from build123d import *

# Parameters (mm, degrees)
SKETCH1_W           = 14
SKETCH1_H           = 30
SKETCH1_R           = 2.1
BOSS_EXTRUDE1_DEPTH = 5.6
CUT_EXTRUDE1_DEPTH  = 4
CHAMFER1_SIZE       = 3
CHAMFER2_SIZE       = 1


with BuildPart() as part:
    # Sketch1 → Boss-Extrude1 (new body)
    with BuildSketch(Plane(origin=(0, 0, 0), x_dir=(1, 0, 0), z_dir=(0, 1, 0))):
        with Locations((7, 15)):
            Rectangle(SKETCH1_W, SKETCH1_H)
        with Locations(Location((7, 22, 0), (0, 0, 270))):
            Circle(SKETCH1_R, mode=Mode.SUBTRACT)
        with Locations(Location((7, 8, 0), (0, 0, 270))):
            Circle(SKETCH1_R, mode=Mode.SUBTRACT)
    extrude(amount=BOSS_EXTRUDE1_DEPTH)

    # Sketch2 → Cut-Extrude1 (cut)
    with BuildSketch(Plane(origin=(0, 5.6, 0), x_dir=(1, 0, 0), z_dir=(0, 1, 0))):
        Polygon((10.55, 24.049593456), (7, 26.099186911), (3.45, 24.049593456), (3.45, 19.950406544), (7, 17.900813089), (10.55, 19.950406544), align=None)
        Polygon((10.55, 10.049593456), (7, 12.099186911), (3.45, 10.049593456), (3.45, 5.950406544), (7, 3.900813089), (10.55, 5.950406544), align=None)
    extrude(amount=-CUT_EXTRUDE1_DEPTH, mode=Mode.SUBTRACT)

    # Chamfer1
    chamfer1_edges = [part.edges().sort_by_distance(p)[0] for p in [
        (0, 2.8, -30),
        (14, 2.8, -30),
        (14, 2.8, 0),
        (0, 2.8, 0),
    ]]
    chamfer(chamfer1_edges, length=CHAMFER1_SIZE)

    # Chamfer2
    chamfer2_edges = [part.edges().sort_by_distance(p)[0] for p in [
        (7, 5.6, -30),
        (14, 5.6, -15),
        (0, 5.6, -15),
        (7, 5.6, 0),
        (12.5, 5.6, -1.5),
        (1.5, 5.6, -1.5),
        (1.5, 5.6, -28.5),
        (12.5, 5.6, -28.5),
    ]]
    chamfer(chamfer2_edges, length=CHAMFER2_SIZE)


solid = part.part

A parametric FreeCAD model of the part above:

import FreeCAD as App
import Part
import Sketcher
from FreeCAD import Vector
Q = App.Units.Quantity


def edges_at(feature, points):
    """Names of the edges that pass closest to the given points."""
    edges = feature.Shape.Edges
    near = lambda p: min(range(len(edges)), key=lambda i: edges[i].distToShape(Part.Vertex(*p))[0])
    return sorted({f"Edge{near(p) + 1}" for p in points})


def add_polygon(sketch, points):
    """Adds a closed chain of lines whose ends are joined by coincident constraints."""
    first, n = sketch.GeometryCount, len(points)
    for a, b in zip(points, points[1:] + points[:1]):
        sketch.addGeometry(Part.LineSegment(App.Vector(*a, 0), App.Vector(*b, 0)), False)
    for i in range(n):
        sketch.addConstraint(Sketcher.Constraint("Coincident", first + i, 2, first + (i + 1) % n, 1))

doc = App.newDocument("Part")
body = doc.addObject("PartDesign::Body", "Body")

# Sketch on XZ plane
sketch1 = doc.addObject("Sketcher::SketchObject", "Sketch")
body.addObject(sketch1)
sketch1.AttachmentSupport = (doc.XZ_Plane, [""])
sketch1.MapMode = "FlatFace"
add_polygon(sketch1, [(0, -30), (0, 0), (14, 0), (14, -30)])  # lines 0-3
sketch1.addGeometry(Part.Circle(Vector(7, -8, 0), Vector(0, 0, 1), 2.1), False)  # 4
sketch1.addGeometry(Part.Circle(Vector(7, -22, 0), Vector(0, 0, 1), 2.1), False)  # 5
sketch1.addConstraint([
    Sketcher.Constraint("Vertical", 0),
    Sketcher.Constraint("Horizontal", 1),
    Sketcher.Constraint("Vertical", 2),
    Sketcher.Constraint("Horizontal", 3),
    Sketcher.Constraint("Coincident", 0, 2, -1, 1),
    Sketcher.Constraint("Equal", 4, 5),
    Sketcher.Constraint("Vertical", 4, 3, 5, 3),
    Sketcher.Constraint("Diameter", 4, Q("4.2 mm")),
    Sketcher.Constraint("DistanceX", 1, 1, 1, 2, Q("14 mm")),
    Sketcher.Constraint("DistanceY", 0, 1, 0, 2, Q("30 mm")),
    Sketcher.Constraint("DistanceX", -1, 1, 4, 3, Q("7 mm")),
    Sketcher.Constraint("DistanceY", 4, 3, -1, 1, Q("8 mm")),
    Sketcher.Constraint("DistanceY", 5, 3, -1, 1, Q("22 mm")),
])
pad1 = doc.addObject("PartDesign::Pad", "Pad")
body.addObject(pad1)
pad1.Profile = sketch1
pad1.Length = 5.6
pad1.Reversed = True

# Sketch on XZ plane
sketch2 = doc.addObject("Sketcher::SketchObject", "Sketch001")
body.addObject(sketch2)
sketch2.AttachmentSupport = (doc.XZ_Plane, [""])
sketch2.MapMode = "FlatFace"
sketch2.AttachmentOffset = App.Placement(Vector(0, 0, -5.6), App.Rotation())
add_polygon(sketch2, [(10.6, -24), (7, -26.1), (3.5, -24), (3.5, -20), (7, -17.9), (10.6, -20)])  # lines 0-5
add_polygon(sketch2, [(10.6, -10), (7, -12.1), (3.5, -10), (3.5, -6), (7, -3.9), (10.6, -6)])  # lines 6-11
sketch2.addConstraint([
    Sketcher.Constraint("Vertical", 2),
    Sketcher.Constraint("Vertical", 5),
    Sketcher.Constraint("Vertical", 8),
    Sketcher.Constraint("Vertical", 11),
    Sketcher.Constraint("Parallel", 0, 3),
    Sketcher.Constraint("Parallel", 1, 4),
    Sketcher.Constraint("Parallel", 3, 6),
    Sketcher.Constraint("Parallel", 4, 7),
    Sketcher.Constraint("Parallel", 6, 9),
    Sketcher.Constraint("Parallel", 7, 10),
    Sketcher.Constraint("Horizontal", 2, 2, 4, 2),
    Sketcher.Constraint("Horizontal", 1, 2, 5, 2),
    Sketcher.Constraint("Horizontal", 8, 2, 10, 2),
    Sketcher.Constraint("Horizontal", 7, 2, 11, 2),
    Sketcher.Constraint("Vertical", 0, 2, 3, 2),
    Sketcher.Constraint("Vertical", 3, 2, 6, 2),
    Sketcher.Constraint("Vertical", 2, 2, 7, 2),
    Sketcher.Constraint("Equal", 5, 8),
    Sketcher.Constraint("Angle", 0, Q("-150 deg")),
    Sketcher.Constraint("DistanceX", -1, 1, 0, 2, Q("7 mm")),
    Sketcher.Constraint("DistanceY", 1, 2, 7, 2, Q("14 mm")),
    Sketcher.Constraint("DistanceX", 2, 2, 4, 2, Q("7.1 mm")),
    Sketcher.Constraint("DistanceY", 2, 1, 2, 2, Q("4.099187 mm")),
    Sketcher.Constraint("DistanceY", 0, 2, -1, 1, Q("26.099187 mm")),
])
pocket1 = doc.addObject("PartDesign::Pocket", "Pocket")
body.addObject(pocket1)
pocket1.Profile = sketch2
pocket1.Length = 4
pocket1.Reversed = True
doc.recompute()

chamfer = doc.addObject("PartDesign::Chamfer", "Chamfer")
body.addObject(chamfer)
chamfer.Base = (pocket1, edges_at(pocket1, [
    (0, 2.8, -30),
    (14, 2.8, -30),
    (14, 2.8, 0),
    (0, 2.8, 0),
]))
chamfer.Size = 3
doc.recompute()

chamfer2 = doc.addObject("PartDesign::Chamfer", "Chamfer001")
body.addObject(chamfer2)
chamfer2.Base = (chamfer, edges_at(chamfer, [
    (7, 5.6, -30),
    (14, 5.6, -15),
    (0, 5.6, -15),
    (7, 5.6, 0),
    (12.5, 5.6, -1.5),
    (1.5, 5.6, -1.5),
    (1.5, 5.6, -28.5),
    (12.5, 5.6, -28.5),
]))
chamfer2.Size = 1

doc.recompute()
